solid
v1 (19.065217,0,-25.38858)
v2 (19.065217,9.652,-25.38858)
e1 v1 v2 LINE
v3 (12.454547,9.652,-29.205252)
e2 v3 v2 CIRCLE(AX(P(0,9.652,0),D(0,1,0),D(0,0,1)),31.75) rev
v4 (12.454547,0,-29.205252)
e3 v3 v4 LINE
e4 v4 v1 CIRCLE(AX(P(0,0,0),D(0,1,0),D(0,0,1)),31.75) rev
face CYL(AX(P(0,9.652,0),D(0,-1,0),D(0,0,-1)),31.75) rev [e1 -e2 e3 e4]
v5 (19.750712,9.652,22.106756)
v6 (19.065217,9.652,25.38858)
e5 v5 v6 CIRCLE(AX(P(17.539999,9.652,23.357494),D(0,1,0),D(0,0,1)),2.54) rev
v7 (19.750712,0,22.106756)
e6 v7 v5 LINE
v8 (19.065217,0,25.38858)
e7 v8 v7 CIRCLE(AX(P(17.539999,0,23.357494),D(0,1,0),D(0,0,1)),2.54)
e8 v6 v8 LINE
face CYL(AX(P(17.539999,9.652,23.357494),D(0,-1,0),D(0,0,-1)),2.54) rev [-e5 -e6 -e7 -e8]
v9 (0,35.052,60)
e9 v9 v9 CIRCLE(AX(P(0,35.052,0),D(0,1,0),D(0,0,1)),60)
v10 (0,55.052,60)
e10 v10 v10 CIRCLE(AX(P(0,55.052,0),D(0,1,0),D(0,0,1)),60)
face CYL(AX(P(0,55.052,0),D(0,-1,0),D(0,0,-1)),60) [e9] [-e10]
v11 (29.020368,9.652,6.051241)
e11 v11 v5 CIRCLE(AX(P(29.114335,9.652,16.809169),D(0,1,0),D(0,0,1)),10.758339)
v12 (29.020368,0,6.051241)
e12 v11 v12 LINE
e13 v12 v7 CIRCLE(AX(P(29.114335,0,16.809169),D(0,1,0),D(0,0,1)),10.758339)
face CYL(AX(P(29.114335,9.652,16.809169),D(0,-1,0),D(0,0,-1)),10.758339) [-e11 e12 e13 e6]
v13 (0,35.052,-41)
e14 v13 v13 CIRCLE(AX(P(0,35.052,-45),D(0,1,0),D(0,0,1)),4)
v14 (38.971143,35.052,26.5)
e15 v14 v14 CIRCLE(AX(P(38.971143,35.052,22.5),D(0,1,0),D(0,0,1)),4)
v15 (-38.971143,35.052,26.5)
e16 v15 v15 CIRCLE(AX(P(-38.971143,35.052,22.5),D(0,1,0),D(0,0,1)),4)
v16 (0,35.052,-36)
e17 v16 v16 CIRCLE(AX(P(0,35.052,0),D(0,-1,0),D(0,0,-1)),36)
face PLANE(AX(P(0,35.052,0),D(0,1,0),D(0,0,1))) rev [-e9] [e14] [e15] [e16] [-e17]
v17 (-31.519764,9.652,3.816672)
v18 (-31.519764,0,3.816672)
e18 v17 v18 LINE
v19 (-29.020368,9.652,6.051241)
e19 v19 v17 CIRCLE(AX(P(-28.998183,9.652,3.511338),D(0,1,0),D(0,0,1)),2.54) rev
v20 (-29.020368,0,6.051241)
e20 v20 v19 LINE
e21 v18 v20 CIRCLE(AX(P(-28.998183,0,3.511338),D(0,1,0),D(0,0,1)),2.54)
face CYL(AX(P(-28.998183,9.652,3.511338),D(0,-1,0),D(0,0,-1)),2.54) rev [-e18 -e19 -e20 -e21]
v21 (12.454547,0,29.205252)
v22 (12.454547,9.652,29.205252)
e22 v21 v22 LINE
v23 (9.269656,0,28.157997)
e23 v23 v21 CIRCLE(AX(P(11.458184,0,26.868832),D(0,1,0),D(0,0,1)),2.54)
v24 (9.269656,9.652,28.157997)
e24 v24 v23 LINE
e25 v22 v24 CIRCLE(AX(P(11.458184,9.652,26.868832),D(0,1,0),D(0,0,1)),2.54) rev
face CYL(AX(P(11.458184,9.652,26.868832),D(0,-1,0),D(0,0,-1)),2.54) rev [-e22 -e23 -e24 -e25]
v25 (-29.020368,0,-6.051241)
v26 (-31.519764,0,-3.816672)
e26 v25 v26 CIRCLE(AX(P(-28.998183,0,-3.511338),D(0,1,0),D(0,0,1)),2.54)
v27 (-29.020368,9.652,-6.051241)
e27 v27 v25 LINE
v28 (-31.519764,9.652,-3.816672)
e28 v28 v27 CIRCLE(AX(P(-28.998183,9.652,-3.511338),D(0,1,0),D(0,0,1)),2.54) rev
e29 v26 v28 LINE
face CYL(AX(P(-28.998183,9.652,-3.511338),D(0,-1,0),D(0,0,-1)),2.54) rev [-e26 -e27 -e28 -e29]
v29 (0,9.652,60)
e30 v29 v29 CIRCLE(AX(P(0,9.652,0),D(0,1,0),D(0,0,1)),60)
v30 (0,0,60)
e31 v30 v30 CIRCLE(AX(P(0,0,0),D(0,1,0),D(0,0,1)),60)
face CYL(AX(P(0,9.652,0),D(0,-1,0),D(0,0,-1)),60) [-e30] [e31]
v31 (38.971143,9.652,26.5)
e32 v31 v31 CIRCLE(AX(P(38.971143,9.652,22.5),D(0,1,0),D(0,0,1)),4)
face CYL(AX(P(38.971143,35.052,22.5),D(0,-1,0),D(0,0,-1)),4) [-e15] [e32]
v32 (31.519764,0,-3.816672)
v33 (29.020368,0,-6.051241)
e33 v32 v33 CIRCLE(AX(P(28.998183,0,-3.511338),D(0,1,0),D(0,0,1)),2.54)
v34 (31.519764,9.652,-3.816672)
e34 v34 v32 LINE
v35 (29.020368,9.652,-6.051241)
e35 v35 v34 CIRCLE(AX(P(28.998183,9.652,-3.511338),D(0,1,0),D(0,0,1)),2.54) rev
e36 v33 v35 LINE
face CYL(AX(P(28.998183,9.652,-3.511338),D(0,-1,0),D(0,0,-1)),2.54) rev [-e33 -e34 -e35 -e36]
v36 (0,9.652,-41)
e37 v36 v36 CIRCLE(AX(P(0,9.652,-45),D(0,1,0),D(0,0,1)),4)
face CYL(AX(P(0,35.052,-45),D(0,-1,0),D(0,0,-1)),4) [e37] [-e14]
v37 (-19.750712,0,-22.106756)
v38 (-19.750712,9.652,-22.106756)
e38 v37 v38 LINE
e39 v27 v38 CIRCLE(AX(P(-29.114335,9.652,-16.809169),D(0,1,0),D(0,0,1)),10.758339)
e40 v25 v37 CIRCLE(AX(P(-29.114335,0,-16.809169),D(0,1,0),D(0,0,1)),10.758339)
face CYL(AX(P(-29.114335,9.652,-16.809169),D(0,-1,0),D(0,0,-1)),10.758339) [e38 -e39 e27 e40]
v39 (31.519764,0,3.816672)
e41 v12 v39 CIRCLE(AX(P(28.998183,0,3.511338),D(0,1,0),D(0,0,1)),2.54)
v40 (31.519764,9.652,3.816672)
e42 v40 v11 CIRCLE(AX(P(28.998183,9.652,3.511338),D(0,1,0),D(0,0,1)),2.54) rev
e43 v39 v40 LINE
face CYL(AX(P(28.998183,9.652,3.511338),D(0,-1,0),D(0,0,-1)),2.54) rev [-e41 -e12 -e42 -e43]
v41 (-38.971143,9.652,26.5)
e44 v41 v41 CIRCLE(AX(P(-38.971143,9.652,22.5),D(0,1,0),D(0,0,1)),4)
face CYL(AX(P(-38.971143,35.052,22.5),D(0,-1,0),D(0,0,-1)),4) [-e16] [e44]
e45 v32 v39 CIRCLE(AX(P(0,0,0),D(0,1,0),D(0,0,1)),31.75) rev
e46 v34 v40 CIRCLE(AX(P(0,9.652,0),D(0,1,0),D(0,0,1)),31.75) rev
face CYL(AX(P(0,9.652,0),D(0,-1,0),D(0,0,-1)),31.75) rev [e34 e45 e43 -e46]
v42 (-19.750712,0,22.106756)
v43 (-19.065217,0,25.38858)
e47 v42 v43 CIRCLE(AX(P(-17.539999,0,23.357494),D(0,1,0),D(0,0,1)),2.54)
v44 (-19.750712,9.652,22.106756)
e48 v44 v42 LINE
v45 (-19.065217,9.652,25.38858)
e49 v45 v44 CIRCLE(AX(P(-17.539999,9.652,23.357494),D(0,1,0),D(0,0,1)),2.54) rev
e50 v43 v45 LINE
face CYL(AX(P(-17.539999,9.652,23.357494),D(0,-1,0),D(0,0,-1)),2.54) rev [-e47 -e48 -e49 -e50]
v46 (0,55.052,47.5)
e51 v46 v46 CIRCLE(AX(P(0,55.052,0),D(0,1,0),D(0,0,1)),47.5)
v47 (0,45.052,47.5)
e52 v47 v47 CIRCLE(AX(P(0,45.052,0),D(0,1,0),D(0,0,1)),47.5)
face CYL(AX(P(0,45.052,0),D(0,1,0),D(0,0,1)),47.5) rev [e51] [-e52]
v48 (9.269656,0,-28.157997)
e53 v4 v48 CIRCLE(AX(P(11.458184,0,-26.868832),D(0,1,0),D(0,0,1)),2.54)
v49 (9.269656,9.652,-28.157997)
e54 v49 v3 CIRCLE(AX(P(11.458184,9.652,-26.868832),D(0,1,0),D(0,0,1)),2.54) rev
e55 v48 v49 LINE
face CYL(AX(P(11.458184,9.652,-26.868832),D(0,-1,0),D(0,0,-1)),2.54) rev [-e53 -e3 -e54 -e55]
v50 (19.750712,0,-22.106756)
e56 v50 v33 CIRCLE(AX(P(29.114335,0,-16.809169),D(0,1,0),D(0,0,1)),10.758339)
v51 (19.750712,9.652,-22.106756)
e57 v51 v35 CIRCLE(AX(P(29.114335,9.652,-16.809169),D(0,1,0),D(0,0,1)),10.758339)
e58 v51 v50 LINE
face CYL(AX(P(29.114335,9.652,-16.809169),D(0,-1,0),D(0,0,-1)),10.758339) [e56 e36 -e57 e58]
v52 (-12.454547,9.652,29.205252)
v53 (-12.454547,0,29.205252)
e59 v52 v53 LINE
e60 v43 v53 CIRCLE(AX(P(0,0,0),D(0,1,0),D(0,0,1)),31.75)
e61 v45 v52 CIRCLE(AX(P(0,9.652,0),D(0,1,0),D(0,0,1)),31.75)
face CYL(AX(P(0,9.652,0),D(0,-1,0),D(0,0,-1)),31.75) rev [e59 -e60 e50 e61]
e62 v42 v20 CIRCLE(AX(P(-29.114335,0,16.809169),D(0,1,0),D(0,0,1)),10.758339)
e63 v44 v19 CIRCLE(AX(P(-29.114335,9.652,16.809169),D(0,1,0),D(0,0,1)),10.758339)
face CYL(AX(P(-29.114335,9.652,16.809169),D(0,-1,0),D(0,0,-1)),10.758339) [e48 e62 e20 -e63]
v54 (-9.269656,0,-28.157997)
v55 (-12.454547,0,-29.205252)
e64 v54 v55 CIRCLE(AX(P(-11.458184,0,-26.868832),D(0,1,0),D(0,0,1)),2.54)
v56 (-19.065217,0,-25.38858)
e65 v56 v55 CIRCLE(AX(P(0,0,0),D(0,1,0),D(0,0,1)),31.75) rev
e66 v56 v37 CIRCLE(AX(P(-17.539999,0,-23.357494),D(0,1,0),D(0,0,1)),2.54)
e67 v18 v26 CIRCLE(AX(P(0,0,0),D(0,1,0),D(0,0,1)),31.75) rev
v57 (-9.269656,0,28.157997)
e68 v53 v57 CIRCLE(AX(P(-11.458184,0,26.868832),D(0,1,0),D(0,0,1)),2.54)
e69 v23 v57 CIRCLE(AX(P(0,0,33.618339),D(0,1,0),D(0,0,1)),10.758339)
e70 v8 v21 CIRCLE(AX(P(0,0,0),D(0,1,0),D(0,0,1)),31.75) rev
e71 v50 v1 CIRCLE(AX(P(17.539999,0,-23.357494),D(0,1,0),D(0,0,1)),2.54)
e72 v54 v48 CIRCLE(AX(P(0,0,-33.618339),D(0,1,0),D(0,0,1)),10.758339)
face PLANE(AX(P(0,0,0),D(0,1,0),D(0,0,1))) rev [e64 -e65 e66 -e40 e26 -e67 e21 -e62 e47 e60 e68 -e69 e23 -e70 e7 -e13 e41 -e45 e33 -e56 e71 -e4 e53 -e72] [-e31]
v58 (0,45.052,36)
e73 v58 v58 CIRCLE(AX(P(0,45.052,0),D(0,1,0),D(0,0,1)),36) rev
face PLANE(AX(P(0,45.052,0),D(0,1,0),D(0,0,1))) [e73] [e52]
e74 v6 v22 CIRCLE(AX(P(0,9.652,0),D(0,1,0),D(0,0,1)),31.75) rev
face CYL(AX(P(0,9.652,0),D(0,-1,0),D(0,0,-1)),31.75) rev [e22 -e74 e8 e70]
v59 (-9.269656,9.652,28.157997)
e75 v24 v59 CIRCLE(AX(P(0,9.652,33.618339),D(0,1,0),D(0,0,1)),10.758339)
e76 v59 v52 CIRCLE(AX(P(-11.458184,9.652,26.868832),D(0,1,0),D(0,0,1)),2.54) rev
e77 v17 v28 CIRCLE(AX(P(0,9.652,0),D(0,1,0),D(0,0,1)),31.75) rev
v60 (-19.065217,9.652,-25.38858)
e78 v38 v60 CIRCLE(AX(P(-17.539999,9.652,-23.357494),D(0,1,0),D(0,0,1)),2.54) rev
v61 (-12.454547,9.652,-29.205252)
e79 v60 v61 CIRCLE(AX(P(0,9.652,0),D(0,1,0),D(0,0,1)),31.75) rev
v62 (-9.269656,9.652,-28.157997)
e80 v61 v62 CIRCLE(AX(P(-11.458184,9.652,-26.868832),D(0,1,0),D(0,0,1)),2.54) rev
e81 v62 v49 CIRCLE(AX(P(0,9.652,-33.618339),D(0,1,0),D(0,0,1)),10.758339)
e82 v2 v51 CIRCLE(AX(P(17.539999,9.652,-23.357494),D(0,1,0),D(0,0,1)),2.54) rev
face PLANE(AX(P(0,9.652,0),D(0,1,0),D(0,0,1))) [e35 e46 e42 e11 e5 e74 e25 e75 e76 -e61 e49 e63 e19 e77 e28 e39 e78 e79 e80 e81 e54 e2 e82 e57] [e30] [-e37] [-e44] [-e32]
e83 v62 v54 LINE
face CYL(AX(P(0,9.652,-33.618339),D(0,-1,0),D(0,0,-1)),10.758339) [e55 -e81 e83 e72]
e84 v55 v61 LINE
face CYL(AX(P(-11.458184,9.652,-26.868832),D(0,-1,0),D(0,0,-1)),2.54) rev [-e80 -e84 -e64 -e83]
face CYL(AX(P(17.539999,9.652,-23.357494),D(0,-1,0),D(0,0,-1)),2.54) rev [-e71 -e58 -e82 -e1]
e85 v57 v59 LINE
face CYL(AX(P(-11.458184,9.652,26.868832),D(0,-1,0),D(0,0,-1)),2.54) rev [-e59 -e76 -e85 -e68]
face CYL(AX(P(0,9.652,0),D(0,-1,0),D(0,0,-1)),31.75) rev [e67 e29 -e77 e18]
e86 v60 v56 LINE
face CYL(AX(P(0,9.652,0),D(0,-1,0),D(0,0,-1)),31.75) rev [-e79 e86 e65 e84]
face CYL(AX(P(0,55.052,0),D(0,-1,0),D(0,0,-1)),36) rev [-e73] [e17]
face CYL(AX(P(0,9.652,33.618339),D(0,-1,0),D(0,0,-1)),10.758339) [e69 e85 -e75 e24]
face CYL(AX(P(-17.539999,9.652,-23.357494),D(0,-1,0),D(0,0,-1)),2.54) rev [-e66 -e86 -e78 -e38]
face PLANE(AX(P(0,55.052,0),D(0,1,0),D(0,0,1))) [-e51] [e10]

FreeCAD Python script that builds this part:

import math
import FreeCAD as App
import Part
import Sketcher


def edges_at(feature, points):
    """Names of the edges that pass closest to the given points."""
    edges = feature.Shape.Edges
    near = lambda p: min(range(len(edges)), key=lambda i: edges[i].distToShape(Part.Vertex(*p))[0])
    return sorted({f"Edge{near(p) + 1}" for p in points})

doc = App.newDocument("Part")
params = doc.addObject("Spreadsheet::Sheet", "Params")
for row, (alias, value) in enumerate([
    ("sketch1_diameter", "120 mm"),
    ("sketch1_radius", "31.75 mm"),
    ("pad1_length", "9.652 mm"),
    ("sketch2_diameter", "8 mm"),
    ("pad2_length", "25.4 mm"),
    ("sketch3_diameter", "120 mm"),
    ("pad3_length", "20 mm"),
    ("sketch4_diameter", "72 mm"),
    ("sketch5_diameter", "95 mm"),
    ("pocket2_length", "10 mm"),
    ("fillet_radius", "2.54 mm"),
], start=1):
    params.set(f"A{row}", alias)
    params.set(f"B{row}", "=" + value)
    params.setAlias(f"B{row}", alias)

body = doc.addObject("PartDesign::Body", "Body")

sketch1 = body.newObject("Sketcher::SketchObject", "Sketch")
sketch1.AttachmentSupport = (doc.getObject("XZ_Plane"), [""])
sketch1.MapMode = "FlatFace"
sketch1.addGeometry(Part.Circle(App.Vector(0, 0, 0), App.Vector(0, 0, 1), 60), False)
sketch1.addGeometry(Part.ArcOfCircle(Part.Circle(App.Vector(0, 0, 0), App.Vector(0, 0, 1), 32), math.radians(-131), math.radians(-109)), False)
sketch1.addGeometry(Part.ArcOfCircle(Part.Circle(App.Vector(0, -34, 0), App.Vector(0, 0, 1), 11), math.radians(19), math.radians(161)), False)
sketch1.addGeometry(Part.ArcOfCircle(Part.Circle(App.Vector(0, 0, 0), App.Vector(0, 0, 1), 32), math.radians(-71), math.radians(-49)), False)
sketch1.addGeometry(Part.ArcOfCircle(Part.Circle(App.Vector(29, -17, 0), App.Vector(0, 0, 1), 11), math.radians(79), math.radians(221)), False)
sketch1.addGeometry(Part.ArcOfCircle(Part.Circle(App.Vector(0, 0, 0), App.Vector(0, 0, 1), 32), math.radians(-11), math.radians(11)), False)
sketch1.addGeometry(Part.ArcOfCircle(Part.Circle(App.Vector(29, 17, 0), App.Vector(0, 0, 1), 11), math.radians(139), math.radians(281)), False)
sketch1.addGeometry(Part.ArcOfCircle(Part.Circle(App.Vector(0, 0, 0), App.Vector(0, 0, 1), 32), math.radians(49), math.radians(71)), False)
sketch1.addGeometry(Part.ArcOfCircle(Part.Circle(App.Vector(0, 34, 0), App.Vector(0, 0, 1), 11), math.radians(-161), math.radians(-19)), False)
sketch1.addGeometry(Part.ArcOfCircle(Part.Circle(App.Vector(0, 0, 0), App.Vector(0, 0, 1), 32), math.radians(109), math.radians(131)), False)
sketch1.addGeometry(Part.ArcOfCircle(Part.Circle(App.Vector(-29, 17, 0), App.Vector(0, 0, 1), 11), math.radians(-101), math.radians(41)), False)
sketch1.addGeometry(Part.ArcOfCircle(Part.Circle(App.Vector(0, 0, 0), App.Vector(0, 0, 1), 32), math.radians(169), math.radians(191)), False)
sketch1.addGeometry(Part.ArcOfCircle(Part.Circle(App.Vector(-29, -17, 0), App.Vector(0, 0, 1), 11), math.radians(-41), math.radians(101)), False)
sketch1.addConstraint(Sketcher.Constraint("Coincident", 1, 2, 2, 2))
sketch1.addConstraint(Sketcher.Constraint("Coincident", 2, 1, 3, 1))
sketch1.addConstraint(Sketcher.Constraint("Coincident", 3, 2, 4, 2))
sketch1.addConstraint(Sketcher.Constraint("Coincident", 4, 1, 5, 1))
sketch1.addConstraint(Sketcher.Constraint("Coincident", 5, 2, 6, 2))
sketch1.addConstraint(Sketcher.Constraint("Coincident", 6, 1, 7, 1))
sketch1.addConstraint(Sketcher.Constraint("Coincident", 7, 2, 8, 2))
sketch1.addConstraint(Sketcher.Constraint("Coincident", 8, 1, 9, 1))
sketch1.addConstraint(Sketcher.Constraint("Coincident", 9, 2, 10, 2))
sketch1.addConstraint(Sketcher.Constraint("Coincident", 10, 1, 11, 1))
sketch1.addConstraint(Sketcher.Constraint("Coincident", 11, 2, 12, 2))
sketch1.addConstraint(Sketcher.Constraint("Coincident", 12, 1, 1, 1))
sketch1.addConstraint(Sketcher.Constraint("Coincident", 0, 3, -1, 1))
sketch1.addConstraint(Sketcher.Constraint("Coincident", 1, 3, -1, 1))
sketch1.addConstraint(Sketcher.Constraint("Coincident", 3, 3, -1, 1))
sketch1.addConstraint(Sketcher.Constraint("Coincident", 5, 3, -1, 1))
sketch1.addConstraint(Sketcher.Constraint("Coincident", 7, 3, -1, 1))
sketch1.addConstraint(Sketcher.Constraint("Coincident", 9, 3, -1, 1))
sketch1.addConstraint(Sketcher.Constraint("Coincident", 11, 3, -1, 1))
sketch1.addConstraint(Sketcher.Constraint("Equal", 1, 3))
sketch1.addConstraint(Sketcher.Constraint("Equal", 2, 4))
sketch1.addConstraint(Sketcher.Constraint("Equal", 3, 5))
sketch1.addConstraint(Sketcher.Constraint("Equal", 4, 6))
sketch1.addConstraint(Sketcher.Constraint("Equal", 5, 7))
sketch1.addConstraint(Sketcher.Constraint("Equal", 6, 8))
sketch1.addConstraint(Sketcher.Constraint("Equal", 7, 9))
sketch1.addConstraint(Sketcher.Constraint("Equal", 8, 10))
sketch1.addConstraint(Sketcher.Constraint("Equal", 9, 11))
sketch1.addConstraint(Sketcher.Constraint("Equal", 10, 12))
sketch1.addConstraint(Sketcher.Constraint("Symmetric", 2, 3, 8, 3, -1, 1))
sketch1.addConstraint(Sketcher.Constraint("Symmetric", 4, 3, 10, 3, -1, 1))
sketch1.addConstraint(Sketcher.Constraint("Symmetric", 6, 3, 12, 3, -1, 1))
sketch1.addConstraint(Sketcher.Constraint("Symmetric", 6, 3, 10, 3, -2))
sketch1.addConstraint(Sketcher.Constraint("PointOnObject", 2, 3, -2))
sketch1.addConstraint(Sketcher.Constraint("Diameter", 0, 120.0))
sketch1.addConstraint(Sketcher.Constraint("Radius", 1, 31.75))
sketch1.addConstraint(Sketcher.Constraint("DistanceX", 1, 2, -1, 1, 10.16))
sketch1.addConstraint(Sketcher.Constraint("Radius", 2, 10.758339))
sketch1.addConstraint(Sketcher.Constraint("DistanceX", 3, 2, 4, 1, 10.16))
sketch1.addConstraint(Sketcher.Constraint("DistanceY", 4, 3, -1, 1, 16.809169))
sketch1.setExpression("Constraints[34]", "Params.sketch1_diameter")
sketch1.setExpression("Constraints[35]", "Params.sketch1_radius")
pad1 = body.newObject("PartDesign::Pad", "Pad")
pad1.Profile = sketch1
pad1.setExpression("Length", "Params.pad1_length")
pad1.Reversed = True

sketch2 = body.newObject("Sketcher::SketchObject", "Sketch001")
sketch2.AttachmentSupport = (doc.getObject("XZ_Plane"), [""])
sketch2.MapMode = "FlatFace"
sketch2.AttachmentOffset = App.Placement(App.Vector(0, 0, -9.652), App.Rotation())
sketch2.addGeometry(Part.Circle(App.Vector(0, -45, 0), App.Vector(0, 0, 1), 4), False)
sketch2.addGeometry(Part.Circle(App.Vector(39, 22.5, 0), App.Vector(0, 0, 1), 4), False)
sketch2.addGeometry(Part.Circle(App.Vector(-39, 22.5, 0), App.Vector(0, 0, 1), 4), False)
sketch2.addConstraint(Sketcher.Constraint("Equal", 0, 1))
sketch2.addConstraint(Sketcher.Constraint("Equal", 1, 2))
sketch2.addConstraint(Sketcher.Constraint("Symmetric", 1, 3, 2, 3, -2))
sketch2.addConstraint(Sketcher.Constraint("PointOnObject", 0, 3, -2))
sketch2.addConstraint(Sketcher.Constraint("Diameter", 0, 8.0))
sketch2.addConstraint(Sketcher.Constraint("DistanceY", 0, 3, -1, 1, 45.0))
sketch2.addConstraint(Sketcher.Constraint("DistanceY", -1, 1, 1, 3, 22.5))
sketch2.addConstraint(Sketcher.Constraint("DistanceX", -1, 1, 1, 3, 38.971143))
sketch2.setExpression("Constraints[4]", "Params.sketch2_diameter")
pad2 = body.newObject("PartDesign::Pad", "Pad001")
pad2.Profile = sketch2
pad2.setExpression("Length", "Params.pad2_length")
pad2.Reversed = True

sketch3 = body.newObject("Sketcher::SketchObject", "Sketch002")
sketch3.AttachmentSupport = (doc.getObject("XZ_Plane"), [""])
sketch3.MapMode = "FlatFace"
sketch3.AttachmentOffset = App.Placement(App.Vector(0, 0, -35.052), App.Rotation())
sketch3.addGeometry(Part.Circle(App.Vector(0, 0, 0), App.Vector(0, 0, 1), 60), False)
sketch3.addConstraint(Sketcher.Constraint("Coincident", 0, 3, -1, 1))
sketch3.addConstraint(Sketcher.Constraint("Diameter", 0, 120.0))
sketch3.setExpression("Constraints[1]", "Params.sketch3_diameter")
pad3 = body.newObject("PartDesign::Pad", "Pad002")
pad3.Profile = sketch3
pad3.setExpression("Length", "Params.pad3_length")
pad3.Reversed = True

sketch4 = body.newObject("Sketcher::SketchObject", "Sketch003")
sketch4.AttachmentSupport = (doc.getObject("XZ_Plane"), [""])
sketch4.MapMode = "FlatFace"
sketch4.AttachmentOffset = App.Placement(App.Vector(0, 0, -35.052), App.Rotation())
sketch4.addGeometry(Part.Circle(App.Vector(0, 0, 0), App.Vector(0, 0, 1), 36), False)
sketch4.addConstraint(Sketcher.Constraint("Coincident", 0, 3, -1, 1))
sketch4.addConstraint(Sketcher.Constraint("Diameter", 0, 72.0))
sketch4.setExpression("Constraints[1]", "Params.sketch4_diameter")
pocket1 = body.newObject("PartDesign::Pocket", "Pocket")
pocket1.Profile = sketch4
pocket1.Type = "ThroughAll"

sketch5 = body.newObject("Sketcher::SketchObject", "Sketch004")
sketch5.AttachmentSupport = (doc.getObject("XZ_Plane"), [""])
sketch5.MapMode = "FlatFace"
sketch5.AttachmentOffset = App.Placement(App.Vector(0, 0, -55.052), App.Rotation())
sketch5.addGeometry(Part.Circle(App.Vector(0, 0, 0), App.Vector(0, 0, 1), 48), False)
sketch5.addConstraint(Sketcher.Constraint("Coincident", 0, 3, -1, 1))
sketch5.addConstraint(Sketcher.Constraint("Diameter", 0, 95.0))
sketch5.setExpression("Constraints[1]", "Params.sketch5_diameter")
pocket2 = body.newObject("PartDesign::Pocket", "Pocket001")
pocket2.Profile = sketch5
pocket2.setExpression("Length", "Params.pocket2_length")
pocket2.Reversed = True
doc.recompute()

fillet = body.newObject("PartDesign::Fillet", "Fillet")
fillet.Base = (pocket2, edges_at(pocket2, [
    (-10.16, 4.826, 30.081),
    (10.16, 4.826, 30.081),
    (20.97, 4.826, 23.839),
    (31.13, 4.826, 6.241),
    (31.13, 4.826, -6.241),
    (20.97, 4.826, -23.839),
    (10.16, 4.826, -30.081),
    (-10.16, 4.826, -30.081),
    (-20.97, 4.826, -23.839),
    (-31.13, 4.826, -6.241),
    (-31.13, 4.826, 6.241),
    (-20.97, 4.826, 23.839),
]))
fillet.setExpression("Radius", "Params.fillet_radius")

doc.recompute()
